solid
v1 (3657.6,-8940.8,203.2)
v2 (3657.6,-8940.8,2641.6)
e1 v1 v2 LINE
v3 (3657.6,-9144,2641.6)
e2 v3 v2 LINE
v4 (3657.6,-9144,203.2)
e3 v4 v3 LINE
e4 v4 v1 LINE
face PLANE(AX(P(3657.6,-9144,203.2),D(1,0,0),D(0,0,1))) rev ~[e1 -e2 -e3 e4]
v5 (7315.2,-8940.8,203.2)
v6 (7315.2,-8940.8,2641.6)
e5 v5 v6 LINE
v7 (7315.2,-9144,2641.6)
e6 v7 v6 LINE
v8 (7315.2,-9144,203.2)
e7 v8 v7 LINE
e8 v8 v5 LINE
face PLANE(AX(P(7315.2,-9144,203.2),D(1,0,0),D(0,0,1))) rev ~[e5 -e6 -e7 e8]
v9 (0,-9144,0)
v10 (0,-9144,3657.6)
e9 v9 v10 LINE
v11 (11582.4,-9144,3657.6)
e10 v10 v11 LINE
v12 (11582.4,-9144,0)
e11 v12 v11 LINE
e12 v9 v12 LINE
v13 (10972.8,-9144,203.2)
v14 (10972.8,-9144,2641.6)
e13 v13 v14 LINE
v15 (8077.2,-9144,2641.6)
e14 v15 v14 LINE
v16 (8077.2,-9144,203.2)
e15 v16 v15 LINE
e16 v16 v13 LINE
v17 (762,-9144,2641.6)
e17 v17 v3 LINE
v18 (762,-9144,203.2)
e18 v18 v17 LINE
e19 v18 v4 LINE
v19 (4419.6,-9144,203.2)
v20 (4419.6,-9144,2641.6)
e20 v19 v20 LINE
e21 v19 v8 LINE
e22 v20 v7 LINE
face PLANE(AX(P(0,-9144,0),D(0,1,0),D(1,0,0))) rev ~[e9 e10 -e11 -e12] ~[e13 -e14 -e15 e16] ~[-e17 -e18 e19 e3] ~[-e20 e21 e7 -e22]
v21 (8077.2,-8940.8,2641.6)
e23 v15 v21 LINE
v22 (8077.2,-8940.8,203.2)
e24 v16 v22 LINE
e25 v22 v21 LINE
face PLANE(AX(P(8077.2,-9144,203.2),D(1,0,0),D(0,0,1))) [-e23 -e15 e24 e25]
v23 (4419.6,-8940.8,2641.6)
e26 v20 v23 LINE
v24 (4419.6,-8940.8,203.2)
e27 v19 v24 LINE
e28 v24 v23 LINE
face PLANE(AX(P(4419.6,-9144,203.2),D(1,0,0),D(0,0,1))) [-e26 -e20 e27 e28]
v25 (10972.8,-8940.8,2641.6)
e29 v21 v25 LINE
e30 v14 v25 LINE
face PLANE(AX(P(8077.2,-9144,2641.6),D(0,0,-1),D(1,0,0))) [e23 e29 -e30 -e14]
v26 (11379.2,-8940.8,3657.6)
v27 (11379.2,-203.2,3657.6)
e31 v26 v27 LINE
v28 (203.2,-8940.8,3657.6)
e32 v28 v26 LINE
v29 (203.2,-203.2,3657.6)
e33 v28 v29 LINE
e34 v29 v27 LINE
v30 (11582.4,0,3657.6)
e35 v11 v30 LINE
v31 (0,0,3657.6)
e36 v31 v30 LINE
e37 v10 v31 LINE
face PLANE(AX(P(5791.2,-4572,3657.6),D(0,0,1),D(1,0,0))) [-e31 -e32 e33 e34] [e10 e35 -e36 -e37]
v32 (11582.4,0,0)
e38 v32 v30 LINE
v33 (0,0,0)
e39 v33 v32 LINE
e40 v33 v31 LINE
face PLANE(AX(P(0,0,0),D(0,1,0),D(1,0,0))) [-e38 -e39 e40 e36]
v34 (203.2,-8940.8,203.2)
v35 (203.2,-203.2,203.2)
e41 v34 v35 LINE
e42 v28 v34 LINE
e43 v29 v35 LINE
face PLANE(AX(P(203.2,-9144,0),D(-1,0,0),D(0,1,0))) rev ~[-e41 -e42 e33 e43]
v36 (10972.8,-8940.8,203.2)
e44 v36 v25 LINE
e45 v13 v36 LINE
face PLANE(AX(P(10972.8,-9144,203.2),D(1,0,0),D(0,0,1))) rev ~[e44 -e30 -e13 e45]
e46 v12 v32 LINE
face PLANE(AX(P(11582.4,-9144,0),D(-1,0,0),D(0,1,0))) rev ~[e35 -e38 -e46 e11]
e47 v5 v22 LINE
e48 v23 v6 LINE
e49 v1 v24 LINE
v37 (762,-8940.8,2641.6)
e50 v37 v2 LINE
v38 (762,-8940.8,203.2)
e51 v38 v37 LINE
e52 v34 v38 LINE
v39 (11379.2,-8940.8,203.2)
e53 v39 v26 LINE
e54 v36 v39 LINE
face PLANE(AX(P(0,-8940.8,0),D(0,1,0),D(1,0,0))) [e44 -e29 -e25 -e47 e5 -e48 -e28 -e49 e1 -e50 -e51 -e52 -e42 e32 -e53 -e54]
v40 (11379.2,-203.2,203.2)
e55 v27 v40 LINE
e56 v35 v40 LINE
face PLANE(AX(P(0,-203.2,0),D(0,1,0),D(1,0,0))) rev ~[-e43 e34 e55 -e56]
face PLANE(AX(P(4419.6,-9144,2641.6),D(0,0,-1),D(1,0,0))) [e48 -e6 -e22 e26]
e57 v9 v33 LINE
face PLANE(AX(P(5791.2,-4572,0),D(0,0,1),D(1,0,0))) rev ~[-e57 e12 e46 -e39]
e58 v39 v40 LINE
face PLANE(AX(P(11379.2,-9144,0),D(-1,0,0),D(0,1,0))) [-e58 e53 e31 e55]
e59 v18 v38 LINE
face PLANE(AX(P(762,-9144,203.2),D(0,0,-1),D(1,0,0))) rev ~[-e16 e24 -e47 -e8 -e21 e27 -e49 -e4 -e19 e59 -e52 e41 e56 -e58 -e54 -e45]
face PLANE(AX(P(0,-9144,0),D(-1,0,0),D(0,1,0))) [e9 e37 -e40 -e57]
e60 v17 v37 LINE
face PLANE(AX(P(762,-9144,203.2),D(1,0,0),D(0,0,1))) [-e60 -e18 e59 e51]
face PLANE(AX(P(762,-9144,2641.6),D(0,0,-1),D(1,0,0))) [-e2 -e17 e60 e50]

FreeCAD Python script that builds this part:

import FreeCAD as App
import Part
import Sketcher
Q = App.Units.Quantity


def faces_at(feature, points):
    """Names of the faces that lie closest to the given points."""
    faces = feature.Shape.Faces
    near = lambda p: min(range(len(faces)), key=lambda i: faces[i].distToShape(Part.Vertex(*p))[0])
    return sorted({f"Face{near(p) + 1}" for p in points})


def add_polygon(sketch, points):
    """Adds a closed chain of lines whose ends are joined by coincident constraints."""
    first, n = sketch.GeometryCount, len(points)
    for a, b in zip(points, points[1:] + points[:1]):
        sketch.addGeometry(Part.LineSegment(App.Vector(*a, 0), App.Vector(*b, 0)), False)
    for i in range(n):
        sketch.addConstraint(Sketcher.Constraint("Coincident", first + i, 2, first + (i + 1) % n, 1))

doc = App.newDocument("Part")
body = doc.addObject("PartDesign::Body", "Body")

# Sketch on XY plane
sketch1 = body.newObject("Sketcher::SketchObject", "Sketch")
sketch1.AttachmentSupport = (doc.getObject("XY_Plane"), [""])
sketch1.MapMode = "FlatFace"
add_polygon(sketch1, [(0, 0), (0, -9144), (11582, -9144), (11582, 0)])  # lines 0-3
sketch1.addConstraint([
    Sketcher.Constraint("Vertical", 0),
    Sketcher.Constraint("Horizontal", 1),
    Sketcher.Constraint("Vertical", 2),
    Sketcher.Constraint("Horizontal", 3),
    Sketcher.Constraint("Coincident", 3, 2, -1, 1),
    Sketcher.Constraint("DistanceX", 1, 1, 1, 2, Q("456 in")),
    Sketcher.Constraint("DistanceY", 0, 2, 0, 1, Q("360 in")),
])
pad1 = body.newObject("PartDesign::Pad", "Pad")
pad1.Profile = sketch1
pad1.Length = Q("144 in")
doc.recompute()

thickness = body.newObject("PartDesign::Thickness", "Thickness")
thickness.Base = (pad1, faces_at(pad1, [(5791.2, -4572, 3657.6)]))
thickness.Value = Q("8 in")
thickness.Reversed = True
thickness.Join = "Arc"

# Sketch on XZ plane
sketch2 = body.newObject("Sketcher::SketchObject", "Sketch001")
sketch2.AttachmentSupport = (doc.getObject("XZ_Plane"), [""])
sketch2.MapMode = "FlatFace"
sketch2.AttachmentOffset = App.Placement(App.Vector(0, 0, 360 * 25.4), App.Rotation())
add_polygon(sketch2, [(762, 2642), (762, 203), (3658, 203), (3658, 2642)])  # lines 0-3
add_polygon(sketch2, [(4420, 2642), (4420, 203), (7315, 203), (7315, 2642)])  # lines 4-7
add_polygon(sketch2, [(8077, 2642), (8077, 203), (10973, 203), (10973, 2642)])  # lines 8-11
sketch2.addConstraint([
    Sketcher.Constraint("Vertical", 0),
    Sketcher.Constraint("Horizontal", 1),
    Sketcher.Constraint("Vertical", 2),
    Sketcher.Constraint("Horizontal", 3),
    Sketcher.Constraint("Vertical", 4),
    Sketcher.Constraint("Horizontal", 5),
    Sketcher.Constraint("Vertical", 6),
    Sketcher.Constraint("Horizontal", 7),
    Sketcher.Constraint("Vertical", 8),
    Sketcher.Constraint("Horizontal", 9),
    Sketcher.Constraint("Vertical", 10),
    Sketcher.Constraint("Horizontal", 11),
    Sketcher.Constraint("Horizontal", 1, 2, 4, 2),
    Sketcher.Constraint("Horizontal", 3, 2, 6, 2),
    Sketcher.Constraint("Horizontal", 5, 2, 8, 2),
    Sketcher.Constraint("Horizontal", 7, 2, 10, 2),
    Sketcher.Constraint("Equal", 3, 5),
    Sketcher.Constraint("Equal", 7, 9),
    Sketcher.Constraint("DistanceX", 1, 1, 1, 2, Q("114 in")),
    Sketcher.Constraint("DistanceY", 0, 2, 0, 1, Q("96 in")),
    Sketcher.Constraint("DistanceX", -1, 1, 0, 2, Q("30 in")),
    Sketcher.Constraint("DistanceY", -1, 1, 0, 2, Q("8 in")),
    Sketcher.Constraint("DistanceX", -1, 1, 4, 2, Q("174 in")),
    Sketcher.Constraint("DistanceX", -1, 1, 8, 2, Q("318 in")),
])
pocket1 = body.newObject("PartDesign::Pocket", "Pocket")
pocket1.Profile = sketch2
pocket1.Length = Q("8 in")

doc.recompute()
